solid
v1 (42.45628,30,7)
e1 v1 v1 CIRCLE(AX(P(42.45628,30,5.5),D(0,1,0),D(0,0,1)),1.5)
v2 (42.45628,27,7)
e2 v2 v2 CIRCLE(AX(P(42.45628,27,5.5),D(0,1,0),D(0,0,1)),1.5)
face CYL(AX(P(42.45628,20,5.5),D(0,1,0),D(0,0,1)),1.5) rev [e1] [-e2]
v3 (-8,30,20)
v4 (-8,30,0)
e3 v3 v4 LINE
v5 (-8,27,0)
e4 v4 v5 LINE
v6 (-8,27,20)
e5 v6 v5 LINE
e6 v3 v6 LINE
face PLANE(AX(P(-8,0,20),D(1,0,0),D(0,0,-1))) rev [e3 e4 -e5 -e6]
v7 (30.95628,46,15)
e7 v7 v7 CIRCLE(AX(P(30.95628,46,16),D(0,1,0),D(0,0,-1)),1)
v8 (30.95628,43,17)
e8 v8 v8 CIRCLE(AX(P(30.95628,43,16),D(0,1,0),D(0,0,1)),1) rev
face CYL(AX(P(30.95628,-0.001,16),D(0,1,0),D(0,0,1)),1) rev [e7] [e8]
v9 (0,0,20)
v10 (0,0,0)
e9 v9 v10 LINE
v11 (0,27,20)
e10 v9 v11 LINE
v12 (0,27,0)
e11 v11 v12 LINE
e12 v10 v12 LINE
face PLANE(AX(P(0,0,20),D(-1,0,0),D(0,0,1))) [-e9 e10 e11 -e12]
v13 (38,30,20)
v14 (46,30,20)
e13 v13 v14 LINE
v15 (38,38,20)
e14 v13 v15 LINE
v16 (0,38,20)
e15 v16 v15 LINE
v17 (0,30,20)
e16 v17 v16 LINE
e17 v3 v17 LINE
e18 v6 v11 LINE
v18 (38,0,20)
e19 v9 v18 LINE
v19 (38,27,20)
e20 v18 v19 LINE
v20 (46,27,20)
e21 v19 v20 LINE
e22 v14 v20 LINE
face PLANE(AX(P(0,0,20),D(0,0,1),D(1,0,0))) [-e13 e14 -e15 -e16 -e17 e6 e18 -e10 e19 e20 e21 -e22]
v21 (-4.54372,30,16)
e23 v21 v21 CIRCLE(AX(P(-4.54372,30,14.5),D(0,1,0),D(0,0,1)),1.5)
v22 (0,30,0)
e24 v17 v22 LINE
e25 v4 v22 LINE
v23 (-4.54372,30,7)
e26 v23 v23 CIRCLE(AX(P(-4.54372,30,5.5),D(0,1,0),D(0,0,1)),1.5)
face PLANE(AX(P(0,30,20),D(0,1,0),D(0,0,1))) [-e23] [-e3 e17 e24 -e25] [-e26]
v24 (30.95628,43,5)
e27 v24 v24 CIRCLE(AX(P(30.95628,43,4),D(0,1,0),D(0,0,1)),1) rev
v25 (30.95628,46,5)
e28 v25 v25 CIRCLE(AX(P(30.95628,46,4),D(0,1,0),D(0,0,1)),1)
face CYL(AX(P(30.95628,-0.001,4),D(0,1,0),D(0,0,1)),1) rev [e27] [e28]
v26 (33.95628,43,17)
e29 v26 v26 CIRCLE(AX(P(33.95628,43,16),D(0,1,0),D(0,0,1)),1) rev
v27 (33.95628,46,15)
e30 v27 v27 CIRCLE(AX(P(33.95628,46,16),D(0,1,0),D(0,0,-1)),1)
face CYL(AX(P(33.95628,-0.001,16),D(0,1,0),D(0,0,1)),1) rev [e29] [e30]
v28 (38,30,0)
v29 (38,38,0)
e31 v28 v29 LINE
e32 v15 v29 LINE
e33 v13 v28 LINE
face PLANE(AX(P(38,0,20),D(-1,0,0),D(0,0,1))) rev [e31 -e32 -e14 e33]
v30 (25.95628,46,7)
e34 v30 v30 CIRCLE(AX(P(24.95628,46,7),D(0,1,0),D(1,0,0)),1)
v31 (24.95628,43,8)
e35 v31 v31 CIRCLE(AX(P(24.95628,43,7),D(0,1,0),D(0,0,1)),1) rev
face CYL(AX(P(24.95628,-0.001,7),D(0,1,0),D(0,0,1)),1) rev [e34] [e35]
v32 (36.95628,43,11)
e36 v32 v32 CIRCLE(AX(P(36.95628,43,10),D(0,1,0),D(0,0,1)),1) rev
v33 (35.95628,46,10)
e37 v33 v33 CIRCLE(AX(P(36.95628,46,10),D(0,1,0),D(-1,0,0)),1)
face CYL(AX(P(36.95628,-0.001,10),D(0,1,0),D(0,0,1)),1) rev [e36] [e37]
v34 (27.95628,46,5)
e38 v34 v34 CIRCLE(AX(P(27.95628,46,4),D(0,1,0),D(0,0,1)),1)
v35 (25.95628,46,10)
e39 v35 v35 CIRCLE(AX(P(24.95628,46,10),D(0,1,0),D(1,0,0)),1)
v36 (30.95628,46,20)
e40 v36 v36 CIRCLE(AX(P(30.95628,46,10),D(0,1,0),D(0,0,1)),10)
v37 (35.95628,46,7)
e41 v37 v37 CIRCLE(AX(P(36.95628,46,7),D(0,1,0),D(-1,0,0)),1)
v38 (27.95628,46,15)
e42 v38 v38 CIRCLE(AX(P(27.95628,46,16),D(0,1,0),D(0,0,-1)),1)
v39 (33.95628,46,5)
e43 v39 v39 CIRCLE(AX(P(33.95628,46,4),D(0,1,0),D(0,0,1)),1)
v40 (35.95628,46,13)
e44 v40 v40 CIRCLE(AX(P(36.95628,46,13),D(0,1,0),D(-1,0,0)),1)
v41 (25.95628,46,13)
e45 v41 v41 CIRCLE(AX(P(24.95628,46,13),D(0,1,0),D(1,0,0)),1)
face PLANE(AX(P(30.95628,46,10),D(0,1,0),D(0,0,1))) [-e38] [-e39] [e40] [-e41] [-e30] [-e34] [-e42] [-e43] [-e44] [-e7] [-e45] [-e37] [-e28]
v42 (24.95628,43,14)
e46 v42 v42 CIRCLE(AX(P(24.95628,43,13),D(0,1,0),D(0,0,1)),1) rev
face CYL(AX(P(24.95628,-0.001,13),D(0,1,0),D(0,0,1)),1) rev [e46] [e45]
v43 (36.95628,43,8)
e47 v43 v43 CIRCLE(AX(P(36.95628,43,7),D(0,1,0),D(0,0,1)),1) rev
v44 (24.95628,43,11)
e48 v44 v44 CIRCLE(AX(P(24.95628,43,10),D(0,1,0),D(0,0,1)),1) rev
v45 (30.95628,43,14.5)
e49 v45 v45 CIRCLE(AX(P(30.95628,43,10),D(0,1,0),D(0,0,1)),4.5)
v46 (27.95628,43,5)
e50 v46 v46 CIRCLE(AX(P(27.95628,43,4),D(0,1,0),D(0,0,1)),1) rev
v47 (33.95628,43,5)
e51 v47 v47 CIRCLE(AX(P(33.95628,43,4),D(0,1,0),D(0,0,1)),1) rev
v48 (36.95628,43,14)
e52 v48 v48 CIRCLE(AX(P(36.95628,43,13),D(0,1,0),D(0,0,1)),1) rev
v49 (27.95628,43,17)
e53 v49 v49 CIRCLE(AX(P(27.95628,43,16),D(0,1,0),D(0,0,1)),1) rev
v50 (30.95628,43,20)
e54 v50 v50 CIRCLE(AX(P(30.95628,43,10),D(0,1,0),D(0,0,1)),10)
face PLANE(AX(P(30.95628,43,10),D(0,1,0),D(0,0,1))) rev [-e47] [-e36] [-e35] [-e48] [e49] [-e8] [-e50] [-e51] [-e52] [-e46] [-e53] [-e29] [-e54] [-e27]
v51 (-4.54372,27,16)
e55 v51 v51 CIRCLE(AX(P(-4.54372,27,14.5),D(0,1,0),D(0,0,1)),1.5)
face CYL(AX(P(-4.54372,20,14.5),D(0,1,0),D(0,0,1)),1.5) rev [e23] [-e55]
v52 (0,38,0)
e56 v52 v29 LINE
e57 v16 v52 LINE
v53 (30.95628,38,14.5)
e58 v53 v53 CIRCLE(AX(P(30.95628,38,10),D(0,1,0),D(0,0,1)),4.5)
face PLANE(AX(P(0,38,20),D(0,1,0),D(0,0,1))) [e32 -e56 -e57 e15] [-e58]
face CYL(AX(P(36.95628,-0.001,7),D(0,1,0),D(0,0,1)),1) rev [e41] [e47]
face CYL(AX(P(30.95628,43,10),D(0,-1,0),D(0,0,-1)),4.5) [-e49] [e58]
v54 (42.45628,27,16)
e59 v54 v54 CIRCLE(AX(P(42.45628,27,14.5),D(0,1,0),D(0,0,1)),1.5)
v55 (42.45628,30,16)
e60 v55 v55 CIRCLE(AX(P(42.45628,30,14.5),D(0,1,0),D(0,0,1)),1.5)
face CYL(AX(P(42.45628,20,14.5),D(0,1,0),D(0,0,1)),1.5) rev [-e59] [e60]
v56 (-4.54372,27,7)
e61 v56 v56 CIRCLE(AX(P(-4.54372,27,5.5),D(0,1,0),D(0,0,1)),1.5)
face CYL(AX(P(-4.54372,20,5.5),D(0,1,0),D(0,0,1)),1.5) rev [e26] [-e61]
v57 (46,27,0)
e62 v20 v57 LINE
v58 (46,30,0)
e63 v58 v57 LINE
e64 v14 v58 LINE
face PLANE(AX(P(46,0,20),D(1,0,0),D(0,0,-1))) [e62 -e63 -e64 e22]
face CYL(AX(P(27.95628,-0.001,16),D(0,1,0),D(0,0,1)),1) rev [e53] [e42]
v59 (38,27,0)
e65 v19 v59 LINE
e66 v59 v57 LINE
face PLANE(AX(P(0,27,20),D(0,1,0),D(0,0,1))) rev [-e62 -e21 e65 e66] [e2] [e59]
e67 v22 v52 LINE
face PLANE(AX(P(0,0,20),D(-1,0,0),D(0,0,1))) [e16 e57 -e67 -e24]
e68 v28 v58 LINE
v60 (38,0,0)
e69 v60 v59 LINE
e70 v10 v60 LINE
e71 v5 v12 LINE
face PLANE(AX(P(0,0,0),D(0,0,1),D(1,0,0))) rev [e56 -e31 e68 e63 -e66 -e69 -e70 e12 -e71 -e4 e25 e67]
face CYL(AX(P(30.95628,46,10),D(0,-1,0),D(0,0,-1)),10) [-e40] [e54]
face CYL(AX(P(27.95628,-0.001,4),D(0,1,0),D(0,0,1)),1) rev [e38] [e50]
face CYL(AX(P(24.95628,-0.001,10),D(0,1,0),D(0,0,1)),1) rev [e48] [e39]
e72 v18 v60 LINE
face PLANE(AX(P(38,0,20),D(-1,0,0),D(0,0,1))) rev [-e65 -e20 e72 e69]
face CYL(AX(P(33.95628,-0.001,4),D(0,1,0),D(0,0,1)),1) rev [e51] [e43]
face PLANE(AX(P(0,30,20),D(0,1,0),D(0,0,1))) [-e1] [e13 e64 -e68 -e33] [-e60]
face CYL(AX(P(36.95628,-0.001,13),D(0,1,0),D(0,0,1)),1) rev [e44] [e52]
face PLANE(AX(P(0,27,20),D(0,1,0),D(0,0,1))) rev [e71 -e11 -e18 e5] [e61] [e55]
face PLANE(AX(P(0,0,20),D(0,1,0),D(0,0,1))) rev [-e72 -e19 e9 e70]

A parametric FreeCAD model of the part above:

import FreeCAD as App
import Part
import Sketcher

V = App.Vector

doc = App.newDocument("Part")
body = doc.addObject("PartDesign::Body", "Body")

sketch1 = body.newObject("Sketcher::SketchObject", "Sketch")
sketch1.AttachmentSupport = (doc.getObject("XY_Plane"), [""])
sketch1.MapMode = "FlatFace"
sketch1.addGeometry([
    Part.LineSegment(V(0, 0, 0), V(38, 0, 0)),
    Part.LineSegment(V(38, 0, 0), V(38, 27, 0)),
    Part.LineSegment(V(38, 27, 0), V(46, 27, 0)),
    Part.LineSegment(V(46, 27, 0), V(46, 30, 0)),
    Part.LineSegment(V(46, 30, 0), V(38, 30, 0)),
    Part.LineSegment(V(38, 30, 0), V(38, 38, 0)),
    Part.LineSegment(V(38, 38, 0), V(0, 38, 0)),
    Part.LineSegment(V(0, 38, 0), V(0, 30, 0)),
    Part.LineSegment(V(0, 30, 0), V(-8, 30, 0)),
    Part.LineSegment(V(-8, 30, 0), V(-8, 27, 0)),
    Part.LineSegment(V(-8, 27, 0), V(0, 27, 0)),
    Part.LineSegment(V(0, 27, 0), V(0, 0, 0)),
], False)
sketch1.addConstraint([
    Sketcher.Constraint("Coincident", 0, 2, 1, 1),
    Sketcher.Constraint("Coincident", 1, 2, 2, 1),
    Sketcher.Constraint("Coincident", 2, 2, 3, 1),
    Sketcher.Constraint("Coincident", 3, 2, 4, 1),
    Sketcher.Constraint("Coincident", 4, 2, 5, 1),
    Sketcher.Constraint("Coincident", 5, 2, 6, 1),
    Sketcher.Constraint("Coincident", 6, 2, 7, 1),
    Sketcher.Constraint("Coincident", 7, 2, 8, 1),
    Sketcher.Constraint("Coincident", 8, 2, 9, 1),
    Sketcher.Constraint("Coincident", 9, 2, 10, 1),
    Sketcher.Constraint("Coincident", 10, 2, 11, 1),
    Sketcher.Constraint("Coincident", 11, 2, 0, 1),
    Sketcher.Constraint("Horizontal", 0),
    Sketcher.Constraint("Vertical", 1),
    Sketcher.Constraint("Horizontal", 2),
    Sketcher.Constraint("Vertical", 3),
    Sketcher.Constraint("Horizontal", 4),
    Sketcher.Constraint("Vertical", 5),
    Sketcher.Constraint("Horizontal", 6),
    Sketcher.Constraint("Vertical", 7),
    Sketcher.Constraint("Horizontal", 8),
    Sketcher.Constraint("Vertical", 9),
    Sketcher.Constraint("Horizontal", 10),
    Sketcher.Constraint("Vertical", 11),
    Sketcher.Constraint("Coincident", 11, 2, -1, 1),
    Sketcher.Constraint("PointOnObject", 6, 2, -2),
    Sketcher.Constraint("Horizontal", 4, 2, 7, 2),
    Sketcher.Constraint("Horizontal", 2, 2, 9, 2),
    Sketcher.Constraint("Vertical", 1, 2, 4, 2),
    Sketcher.Constraint("Equal", 4, 8),
    Sketcher.Constraint("Equal", 10, 5),
    Sketcher.Constraint("DistanceX", 0, 1, 0, 2, 38.0),
    Sketcher.Constraint("DistanceX", 2, 1, 2, 2, 8.0),
    Sketcher.Constraint("DistanceY", 1, 1, 1, 2, 27.0),
    Sketcher.Constraint("DistanceY", 3, 1, 3, 2, 3.0),
])
pad1 = body.newObject("PartDesign::Pad", "Pad")
pad1.Profile = sketch1
pad1.Length = 20

sketch2 = body.newObject("Sketcher::SketchObject", "Sketch001")
sketch2.AttachmentSupport = (doc.getObject("XZ_Plane"), [""])
sketch2.MapMode = "FlatFace"
sketch2.AttachmentOffset = App.Placement(V(0, 0, -38), App.Rotation())
sketch2.addGeometry(Part.Circle(V(30.95628, 10, 0), V(0, 0, 1), 4.5), False)
sketch2.addConstraint([
    Sketcher.Constraint("Diameter", 0, 9.0),
    Sketcher.Constraint("DistanceY", -1, 1, 0, 3, 10.0),
    Sketcher.Constraint("DistanceX", -1, 1, 0, 3, 30.95628),
])
pad2 = body.newObject("PartDesign::Pad", "Pad001")
pad2.Profile = sketch2
pad2.Length = 5
pad2.Reversed = True

sketch3 = body.newObject("Sketcher::SketchObject", "Sketch002")
sketch3.AttachmentSupport = (doc.getObject("XZ_Plane"), [""])
sketch3.MapMode = "FlatFace"
sketch3.AttachmentOffset = App.Placement(V(0, 0, -43), App.Rotation())
sketch3.addGeometry(Part.Circle(V(30.95628, 10, 0), V(0, 0, 1), 10), False)
sketch3.addConstraint([
    Sketcher.Constraint("Diameter", 0, 20.0),
    Sketcher.Constraint("DistanceY", -1, 1, 0, 3, 10.0),
    Sketcher.Constraint("DistanceX", -1, 1, 0, 3, 30.95628),
])
pad3 = body.newObject("PartDesign::Pad", "Pad002")
pad3.Profile = sketch3
pad3.Length = 3
pad3.Reversed = True

sketch4 = body.newObject("Sketcher::SketchObject", "Sketch003")
sketch4.AttachmentSupport = (doc.getObject("XZ_Plane"), [""])
sketch4.MapMode = "FlatFace"
sketch4.AttachmentOffset = App.Placement(V(0, 0, -30), App.Rotation())
sketch4.addGeometry([
    Part.Circle(V(42.45628, 14.5, 0), V(0, 0, 1), 1.5),
    Part.Circle(V(42.45628, 5.5, 0), V(0, 0, 1), 1.5),
    Part.Circle(V(-4.54372, 14.5, 0), V(0, 0, 1), 1.5),
    Part.Circle(V(-4.54372, 5.5, 0), V(0, 0, 1), 1.5),
], False)
sketch4.addConstraint([
    Sketcher.Constraint("Equal", 0, 1),
    Sketcher.Constraint("Equal", 1, 2),
    Sketcher.Constraint("Equal", 2, 3),
    Sketcher.Constraint("Horizontal", 0, 3, 2, 3),
    Sketcher.Constraint("Horizontal", 1, 3, 3, 3),
    Sketcher.Constraint("Vertical", 0, 3, 1, 3),
    Sketcher.Constraint("Vertical", 2, 3, 3, 3),
    Sketcher.Constraint("Diameter", 0, 3.0),
    Sketcher.Constraint("DistanceY", 1, 3, 0, 3, 9.0),
    Sketcher.Constraint("DistanceX", 2, 3, 0, 3, 47.0),
    Sketcher.Constraint("DistanceY", -1, 1, 0, 3, 14.5),
    Sketcher.Constraint("DistanceX", -1, 1, 0, 3, 42.45628),
])
pocket1 = body.newObject("PartDesign::Pocket", "Pocket")
pocket1.Profile = sketch4
pocket1.Length = 10
pocket1.Reversed = True

sketch5 = body.newObject("Sketcher::SketchObject", "Sketch004")
sketch5.AttachmentSupport = (doc.getObject("XZ_Plane"), [""])
sketch5.MapMode = "FlatFace"
sketch5.AttachmentOffset = App.Placement(V(0, 0, -46), App.Rotation())
sketch5.addGeometry([
    Part.Circle(V(30.95628, 4, 0), V(0, 0, 1), 1),
    Part.Circle(V(27.95628, 4, 0), V(0, 0, 1), 1),
    Part.Circle(V(33.95628, 4, 0), V(0, 0, 1), 1),
], False)
sketch5.addConstraint([
    Sketcher.Constraint("Equal", 0, 1),
    Sketcher.Constraint("Equal", 1, 2),
    Sketcher.Constraint("Horizontal", 0, 3, 1, 3),
    Sketcher.Constraint("Horizontal", 1, 3, 2, 3),
    Sketcher.Constraint("Diameter", 0, 2.0),
    Sketcher.Constraint("DistanceY", -1, 1, 0, 3, 4.0),
    Sketcher.Constraint("DistanceX", 1, 3, 0, 3, 3.0),
    Sketcher.Constraint("DistanceX", 0, 3, 2, 3, 3.0),
    Sketcher.Constraint("DistanceX", -1, 1, 0, 3, 30.95628),
])
pocket2 = body.newObject("PartDesign::Pocket", "Pocket001")
pocket2.Profile = sketch5
pocket2.Length = 3
pocket2.Reversed = True
doc.recompute()

datumline = body.newObject("PartDesign::Line", "DatumLine")
datumline.Placement = App.Placement(V(30.95628, 0, 10), App.Rotation(V(0, 0, 1), V(0, 1, 0)))
polarpattern = body.newObject("PartDesign::PolarPattern", "PolarPattern")
polarpattern.Originals = [pocket2]
polarpattern.Axis = (datumline, [""])
polarpattern.Angle = 360
polarpattern.Occurrences = 4
body.Tip = polarpattern

doc.recompute()
